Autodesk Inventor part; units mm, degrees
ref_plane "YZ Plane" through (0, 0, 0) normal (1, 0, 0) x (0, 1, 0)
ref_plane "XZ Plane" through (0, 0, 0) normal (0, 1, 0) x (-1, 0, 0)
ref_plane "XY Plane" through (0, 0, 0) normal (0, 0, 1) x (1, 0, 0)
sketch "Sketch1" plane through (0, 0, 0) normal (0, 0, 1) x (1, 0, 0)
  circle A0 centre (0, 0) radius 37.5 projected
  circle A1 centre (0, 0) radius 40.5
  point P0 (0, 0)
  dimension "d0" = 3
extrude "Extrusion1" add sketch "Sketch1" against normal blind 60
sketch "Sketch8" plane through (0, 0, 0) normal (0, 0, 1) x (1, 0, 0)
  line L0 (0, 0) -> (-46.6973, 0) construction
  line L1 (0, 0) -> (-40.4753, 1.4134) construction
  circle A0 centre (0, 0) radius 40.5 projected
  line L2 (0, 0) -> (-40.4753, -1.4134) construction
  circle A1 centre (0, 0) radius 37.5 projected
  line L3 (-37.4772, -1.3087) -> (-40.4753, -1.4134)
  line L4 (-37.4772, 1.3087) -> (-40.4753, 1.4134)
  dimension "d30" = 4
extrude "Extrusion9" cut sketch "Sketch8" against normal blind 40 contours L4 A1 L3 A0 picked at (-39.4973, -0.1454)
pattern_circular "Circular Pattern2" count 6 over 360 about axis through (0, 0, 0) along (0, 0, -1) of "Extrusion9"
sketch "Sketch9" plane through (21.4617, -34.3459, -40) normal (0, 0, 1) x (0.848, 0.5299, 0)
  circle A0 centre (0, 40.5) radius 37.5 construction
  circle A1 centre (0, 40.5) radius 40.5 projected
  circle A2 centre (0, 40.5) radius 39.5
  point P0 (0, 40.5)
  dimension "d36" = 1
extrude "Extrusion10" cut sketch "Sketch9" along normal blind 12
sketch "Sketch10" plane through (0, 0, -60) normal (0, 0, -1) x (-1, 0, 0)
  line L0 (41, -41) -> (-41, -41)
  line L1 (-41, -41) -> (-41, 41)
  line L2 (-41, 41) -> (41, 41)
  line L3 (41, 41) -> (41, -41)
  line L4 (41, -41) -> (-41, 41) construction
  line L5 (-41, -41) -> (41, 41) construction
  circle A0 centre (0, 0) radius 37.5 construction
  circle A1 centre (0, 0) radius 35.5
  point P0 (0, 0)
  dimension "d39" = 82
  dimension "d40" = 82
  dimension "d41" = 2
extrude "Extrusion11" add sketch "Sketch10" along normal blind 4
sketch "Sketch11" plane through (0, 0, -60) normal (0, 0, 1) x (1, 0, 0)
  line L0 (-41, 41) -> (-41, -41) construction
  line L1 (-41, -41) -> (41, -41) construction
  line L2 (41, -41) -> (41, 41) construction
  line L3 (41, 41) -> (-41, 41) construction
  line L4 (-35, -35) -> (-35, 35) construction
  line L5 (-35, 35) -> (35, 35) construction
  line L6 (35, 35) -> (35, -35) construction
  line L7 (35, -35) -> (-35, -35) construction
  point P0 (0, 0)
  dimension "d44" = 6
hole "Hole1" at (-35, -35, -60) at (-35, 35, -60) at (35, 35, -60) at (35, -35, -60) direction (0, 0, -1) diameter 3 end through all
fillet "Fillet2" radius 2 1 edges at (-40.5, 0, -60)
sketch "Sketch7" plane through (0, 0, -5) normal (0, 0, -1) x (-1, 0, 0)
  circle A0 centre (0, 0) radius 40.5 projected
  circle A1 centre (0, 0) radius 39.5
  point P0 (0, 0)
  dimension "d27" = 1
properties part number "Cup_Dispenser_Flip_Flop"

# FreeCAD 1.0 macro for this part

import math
import FreeCAD as App
import Part
import Sketcher
from FreeCAD import Vector
Q = App.Units.Quantity


def edges_at(feature, points):
    """Names of the edges that pass closest to the given points."""
    edges = feature.Shape.Edges
    near = lambda p: min(range(len(edges)), key=lambda i: edges[i].distToShape(Part.Vertex(*p))[0])
    return sorted({f"Edge{near(p) + 1}" for p in points})

doc = App.newDocument("Part")
body = doc.addObject("PartDesign::Body", "Body")

sketch1 = doc.addObject("Sketcher::SketchObject", "Sketch")
body.addObject(sketch1)
sketch1.AttachmentSupport = (doc.XY_Plane, [""])
sketch1.MapMode = "FlatFace"
sketch1.addGeometry([
    Part.Circle(Vector(0, 0, 0), Vector(0, 0, 1), 40),
    Part.Circle(Vector(0, 0, 0), Vector(0, 0, 1), 38),
], False)
sketch1.addConstraint([
    Sketcher.Constraint("Coincident", 0, 3, -1, 1),
    Sketcher.Constraint("Coincident", 1, 3, -1, 1),
    Sketcher.Constraint("Diameter", 0, Q("81 mm")),
    Sketcher.Constraint("Diameter", 1, Q("75 mm")),
])
pad1 = doc.addObject("PartDesign::Pad", "Pad")
body.addObject(pad1)
pad1.Profile = sketch1
pad1.Length = 60
pad1.Reversed = True

sketch2 = doc.addObject("Sketcher::SketchObject", "Sketch001")
body.addObject(sketch2)
sketch2.AttachmentSupport = (doc.XY_Plane, [""])
sketch2.MapMode = "FlatFace"
sketch2.addGeometry([
    Part.LineSegment(Vector(-37.5, 1.3, 0), Vector(-40.5, 1.4, 0)),
    Part.ArcOfCircle(Part.Circle(Vector(0, 0, 0), Vector(0, 0, 1), 40.5), math.radians(178), math.radians(182)),
    Part.LineSegment(Vector(-40.5, -1.4, 0), Vector(-37.5, -1.3, 0)),
    Part.ArcOfCircle(Part.Circle(Vector(0, 0, 0), Vector(0, 0, 1), 37.5), math.radians(178), math.radians(182)),
], False)
sketch2.addConstraint([
    Sketcher.Constraint("Coincident", 0, 2, 1, 1),
    Sketcher.Constraint("Coincident", 1, 2, 2, 1),
    Sketcher.Constraint("Coincident", 2, 2, 3, 2),
    Sketcher.Constraint("Coincident", 3, 1, 0, 1),
    Sketcher.Constraint("Coincident", 1, 3, -1, 1),
    Sketcher.Constraint("Coincident", 3, 3, -1, 1),
    Sketcher.Constraint("Vertical", 0, 2, 1, 2),
    Sketcher.Constraint("Vertical", 2, 2, 3, 1),
    Sketcher.Constraint("Radius", 1, Q("40.5 mm")),
    Sketcher.Constraint("Radius", 3, Q("37.5 mm")),
    Sketcher.Constraint("Angle", 0, Q("178 deg")),
    Sketcher.Constraint("DistanceY", 2, 2, 0, 2, Q("2.722 mm")),
])
pocket1 = doc.addObject("PartDesign::Pocket", "Pocket")
body.addObject(pocket1)
pocket1.Profile = sketch2
pocket1.Length = 40
doc.recompute()

polarpattern = doc.addObject("PartDesign::PolarPattern", "PolarPattern")
body.addObject(polarpattern)
polarpattern.Originals = [pocket1]
polarpattern.Axis = (doc.Z_Axis, [""])
polarpattern.Angle = 360
polarpattern.Occurrences = 6
body.Tip = polarpattern

sketch3 = doc.addObject("Sketcher::SketchObject", "Sketch002")
body.addObject(sketch3)
sketch3.AttachmentSupport = (doc.XY_Plane, [""])
sketch3.MapMode = "FlatFace"
sketch3.AttachmentOffset = App.Placement(Vector(0, 0, -40), App.Rotation())
sketch3.addGeometry([
    Part.Circle(Vector(0, 0, 0), Vector(0, 0, 1), 40),
    Part.Circle(Vector(0, 0, 0), Vector(0, 0, 1), 40),
], False)
sketch3.addConstraint([
    Sketcher.Constraint("Coincident", 0, 3, -1, 1),
    Sketcher.Constraint("Coincident", 1, 3, -1, 1),
    Sketcher.Constraint("Diameter", 0, Q("81 mm")),
    Sketcher.Constraint("Diameter", 1, Q("79 mm")),
])
pocket2 = doc.addObject("PartDesign::Pocket", "Pocket001")
body.addObject(pocket2)
pocket2.Profile = sketch3
pocket2.Length = 12
pocket2.Reversed = True

sketch4 = doc.addObject("Sketcher::SketchObject", "Sketch003")
body.addObject(sketch4)
sketch4.AttachmentSupport = (doc.XY_Plane, [""])
sketch4.MapMode = "FlatFace"
sketch4.AttachmentOffset = App.Placement(Vector(0, 0, -60), App.Rotation())
sketch4.addGeometry([
    Part.LineSegment(Vector(41, -41, 0), Vector(-41, -41, 0)),
    Part.LineSegment(Vector(-41, -41, 0), Vector(-41, 41, 0)),
    Part.LineSegment(Vector(-41, 41, 0), Vector(41, 41, 0)),
    Part.LineSegment(Vector(41, 41, 0), Vector(41, -41, 0)),
    Part.Circle(Vector(0, 0, 0), Vector(0, 0, 1), 36),
], False)
sketch4.addConstraint([
    Sketcher.Constraint("Coincident", 0, 2, 1, 1),
    Sketcher.Constraint("Coincident", 1, 2, 2, 1),
    Sketcher.Constraint("Coincident", 2, 2, 3, 1),
    Sketcher.Constraint("Coincident", 3, 2, 0, 1),
    Sketcher.Constraint("Horizontal", 0),
    Sketcher.Constraint("Vertical", 1),
    Sketcher.Constraint("Horizontal", 2),
    Sketcher.Constraint("Vertical", 3),
    Sketcher.Constraint("Coincident", 4, 3, -1, 1),
    Sketcher.Constraint("Symmetric", 0, 2, 2, 2, -1, 1),
    Sketcher.Constraint("Equal", 2, 1),
    Sketcher.Constraint("DistanceX", 0, 2, 0, 1, Q("82 mm")),
    Sketcher.Constraint("Diameter", 4, Q("71 mm")),
])
pad2 = doc.addObject("PartDesign::Pad", "Pad001")
body.addObject(pad2)
pad2.Profile = sketch4
pad2.Length = 4
pad2.Reversed = True

sketch5 = doc.addObject("Sketcher::SketchObject", "Sketch004")
body.addObject(sketch5)
sketch5.AttachmentSupport = (doc.XY_Plane, [""])
sketch5.MapMode = "FlatFace"
sketch5.AttachmentOffset = App.Placement(Vector(0, 0, -60), App.Rotation())
sketch5.addGeometry([
    Part.Circle(Vector(-35, -35, 0), Vector(0, 0, 1), 1.5),
    Part.Circle(Vector(-35, 35, 0), Vector(0, 0, 1), 1.5),
    Part.Circle(Vector(35, 35, 0), Vector(0, 0, 1), 1.5),
    Part.Circle(Vector(35, -35, 0), Vector(0, 0, 1), 1.5),
], False)
sketch5.addConstraint([
    Sketcher.Constraint("Equal", 0, 1),
    Sketcher.Constraint("Equal", 1, 2),
    Sketcher.Constraint("Equal", 2, 3),
    Sketcher.Constraint("Symmetric", 0, 3, 2, 3, -1, 1),
    Sketcher.Constraint("Symmetric", 1, 3, 3, 3, -1, 1),
    Sketcher.Constraint("Symmetric", 1, 3, 2, 3, -2),
    Sketcher.Constraint("Diameter", 0, Q("3 mm")),
    Sketcher.Constraint("DistanceX", 0, 3, -1, 1, Q("35 mm")),
    Sketcher.Constraint("DistanceY", 0, 3, -1, 1, Q("35 mm")),
])
doc.recompute()
hole = doc.addObject("PartDesign::Hole", "Hole")
body.addObject(hole)
hole.Profile = sketch5
hole.ThreadType = "None"
hole.Diameter = 3
hole.DepthType = "ThroughAll"
doc.recompute()

fillet = doc.addObject("PartDesign::Fillet", "Fillet")
body.addObject(fillet)
fillet.Base = (hole, edges_at(hole, [(-40.5, 0, -60)]))
fillet.Radius = 2

doc.recompute()
